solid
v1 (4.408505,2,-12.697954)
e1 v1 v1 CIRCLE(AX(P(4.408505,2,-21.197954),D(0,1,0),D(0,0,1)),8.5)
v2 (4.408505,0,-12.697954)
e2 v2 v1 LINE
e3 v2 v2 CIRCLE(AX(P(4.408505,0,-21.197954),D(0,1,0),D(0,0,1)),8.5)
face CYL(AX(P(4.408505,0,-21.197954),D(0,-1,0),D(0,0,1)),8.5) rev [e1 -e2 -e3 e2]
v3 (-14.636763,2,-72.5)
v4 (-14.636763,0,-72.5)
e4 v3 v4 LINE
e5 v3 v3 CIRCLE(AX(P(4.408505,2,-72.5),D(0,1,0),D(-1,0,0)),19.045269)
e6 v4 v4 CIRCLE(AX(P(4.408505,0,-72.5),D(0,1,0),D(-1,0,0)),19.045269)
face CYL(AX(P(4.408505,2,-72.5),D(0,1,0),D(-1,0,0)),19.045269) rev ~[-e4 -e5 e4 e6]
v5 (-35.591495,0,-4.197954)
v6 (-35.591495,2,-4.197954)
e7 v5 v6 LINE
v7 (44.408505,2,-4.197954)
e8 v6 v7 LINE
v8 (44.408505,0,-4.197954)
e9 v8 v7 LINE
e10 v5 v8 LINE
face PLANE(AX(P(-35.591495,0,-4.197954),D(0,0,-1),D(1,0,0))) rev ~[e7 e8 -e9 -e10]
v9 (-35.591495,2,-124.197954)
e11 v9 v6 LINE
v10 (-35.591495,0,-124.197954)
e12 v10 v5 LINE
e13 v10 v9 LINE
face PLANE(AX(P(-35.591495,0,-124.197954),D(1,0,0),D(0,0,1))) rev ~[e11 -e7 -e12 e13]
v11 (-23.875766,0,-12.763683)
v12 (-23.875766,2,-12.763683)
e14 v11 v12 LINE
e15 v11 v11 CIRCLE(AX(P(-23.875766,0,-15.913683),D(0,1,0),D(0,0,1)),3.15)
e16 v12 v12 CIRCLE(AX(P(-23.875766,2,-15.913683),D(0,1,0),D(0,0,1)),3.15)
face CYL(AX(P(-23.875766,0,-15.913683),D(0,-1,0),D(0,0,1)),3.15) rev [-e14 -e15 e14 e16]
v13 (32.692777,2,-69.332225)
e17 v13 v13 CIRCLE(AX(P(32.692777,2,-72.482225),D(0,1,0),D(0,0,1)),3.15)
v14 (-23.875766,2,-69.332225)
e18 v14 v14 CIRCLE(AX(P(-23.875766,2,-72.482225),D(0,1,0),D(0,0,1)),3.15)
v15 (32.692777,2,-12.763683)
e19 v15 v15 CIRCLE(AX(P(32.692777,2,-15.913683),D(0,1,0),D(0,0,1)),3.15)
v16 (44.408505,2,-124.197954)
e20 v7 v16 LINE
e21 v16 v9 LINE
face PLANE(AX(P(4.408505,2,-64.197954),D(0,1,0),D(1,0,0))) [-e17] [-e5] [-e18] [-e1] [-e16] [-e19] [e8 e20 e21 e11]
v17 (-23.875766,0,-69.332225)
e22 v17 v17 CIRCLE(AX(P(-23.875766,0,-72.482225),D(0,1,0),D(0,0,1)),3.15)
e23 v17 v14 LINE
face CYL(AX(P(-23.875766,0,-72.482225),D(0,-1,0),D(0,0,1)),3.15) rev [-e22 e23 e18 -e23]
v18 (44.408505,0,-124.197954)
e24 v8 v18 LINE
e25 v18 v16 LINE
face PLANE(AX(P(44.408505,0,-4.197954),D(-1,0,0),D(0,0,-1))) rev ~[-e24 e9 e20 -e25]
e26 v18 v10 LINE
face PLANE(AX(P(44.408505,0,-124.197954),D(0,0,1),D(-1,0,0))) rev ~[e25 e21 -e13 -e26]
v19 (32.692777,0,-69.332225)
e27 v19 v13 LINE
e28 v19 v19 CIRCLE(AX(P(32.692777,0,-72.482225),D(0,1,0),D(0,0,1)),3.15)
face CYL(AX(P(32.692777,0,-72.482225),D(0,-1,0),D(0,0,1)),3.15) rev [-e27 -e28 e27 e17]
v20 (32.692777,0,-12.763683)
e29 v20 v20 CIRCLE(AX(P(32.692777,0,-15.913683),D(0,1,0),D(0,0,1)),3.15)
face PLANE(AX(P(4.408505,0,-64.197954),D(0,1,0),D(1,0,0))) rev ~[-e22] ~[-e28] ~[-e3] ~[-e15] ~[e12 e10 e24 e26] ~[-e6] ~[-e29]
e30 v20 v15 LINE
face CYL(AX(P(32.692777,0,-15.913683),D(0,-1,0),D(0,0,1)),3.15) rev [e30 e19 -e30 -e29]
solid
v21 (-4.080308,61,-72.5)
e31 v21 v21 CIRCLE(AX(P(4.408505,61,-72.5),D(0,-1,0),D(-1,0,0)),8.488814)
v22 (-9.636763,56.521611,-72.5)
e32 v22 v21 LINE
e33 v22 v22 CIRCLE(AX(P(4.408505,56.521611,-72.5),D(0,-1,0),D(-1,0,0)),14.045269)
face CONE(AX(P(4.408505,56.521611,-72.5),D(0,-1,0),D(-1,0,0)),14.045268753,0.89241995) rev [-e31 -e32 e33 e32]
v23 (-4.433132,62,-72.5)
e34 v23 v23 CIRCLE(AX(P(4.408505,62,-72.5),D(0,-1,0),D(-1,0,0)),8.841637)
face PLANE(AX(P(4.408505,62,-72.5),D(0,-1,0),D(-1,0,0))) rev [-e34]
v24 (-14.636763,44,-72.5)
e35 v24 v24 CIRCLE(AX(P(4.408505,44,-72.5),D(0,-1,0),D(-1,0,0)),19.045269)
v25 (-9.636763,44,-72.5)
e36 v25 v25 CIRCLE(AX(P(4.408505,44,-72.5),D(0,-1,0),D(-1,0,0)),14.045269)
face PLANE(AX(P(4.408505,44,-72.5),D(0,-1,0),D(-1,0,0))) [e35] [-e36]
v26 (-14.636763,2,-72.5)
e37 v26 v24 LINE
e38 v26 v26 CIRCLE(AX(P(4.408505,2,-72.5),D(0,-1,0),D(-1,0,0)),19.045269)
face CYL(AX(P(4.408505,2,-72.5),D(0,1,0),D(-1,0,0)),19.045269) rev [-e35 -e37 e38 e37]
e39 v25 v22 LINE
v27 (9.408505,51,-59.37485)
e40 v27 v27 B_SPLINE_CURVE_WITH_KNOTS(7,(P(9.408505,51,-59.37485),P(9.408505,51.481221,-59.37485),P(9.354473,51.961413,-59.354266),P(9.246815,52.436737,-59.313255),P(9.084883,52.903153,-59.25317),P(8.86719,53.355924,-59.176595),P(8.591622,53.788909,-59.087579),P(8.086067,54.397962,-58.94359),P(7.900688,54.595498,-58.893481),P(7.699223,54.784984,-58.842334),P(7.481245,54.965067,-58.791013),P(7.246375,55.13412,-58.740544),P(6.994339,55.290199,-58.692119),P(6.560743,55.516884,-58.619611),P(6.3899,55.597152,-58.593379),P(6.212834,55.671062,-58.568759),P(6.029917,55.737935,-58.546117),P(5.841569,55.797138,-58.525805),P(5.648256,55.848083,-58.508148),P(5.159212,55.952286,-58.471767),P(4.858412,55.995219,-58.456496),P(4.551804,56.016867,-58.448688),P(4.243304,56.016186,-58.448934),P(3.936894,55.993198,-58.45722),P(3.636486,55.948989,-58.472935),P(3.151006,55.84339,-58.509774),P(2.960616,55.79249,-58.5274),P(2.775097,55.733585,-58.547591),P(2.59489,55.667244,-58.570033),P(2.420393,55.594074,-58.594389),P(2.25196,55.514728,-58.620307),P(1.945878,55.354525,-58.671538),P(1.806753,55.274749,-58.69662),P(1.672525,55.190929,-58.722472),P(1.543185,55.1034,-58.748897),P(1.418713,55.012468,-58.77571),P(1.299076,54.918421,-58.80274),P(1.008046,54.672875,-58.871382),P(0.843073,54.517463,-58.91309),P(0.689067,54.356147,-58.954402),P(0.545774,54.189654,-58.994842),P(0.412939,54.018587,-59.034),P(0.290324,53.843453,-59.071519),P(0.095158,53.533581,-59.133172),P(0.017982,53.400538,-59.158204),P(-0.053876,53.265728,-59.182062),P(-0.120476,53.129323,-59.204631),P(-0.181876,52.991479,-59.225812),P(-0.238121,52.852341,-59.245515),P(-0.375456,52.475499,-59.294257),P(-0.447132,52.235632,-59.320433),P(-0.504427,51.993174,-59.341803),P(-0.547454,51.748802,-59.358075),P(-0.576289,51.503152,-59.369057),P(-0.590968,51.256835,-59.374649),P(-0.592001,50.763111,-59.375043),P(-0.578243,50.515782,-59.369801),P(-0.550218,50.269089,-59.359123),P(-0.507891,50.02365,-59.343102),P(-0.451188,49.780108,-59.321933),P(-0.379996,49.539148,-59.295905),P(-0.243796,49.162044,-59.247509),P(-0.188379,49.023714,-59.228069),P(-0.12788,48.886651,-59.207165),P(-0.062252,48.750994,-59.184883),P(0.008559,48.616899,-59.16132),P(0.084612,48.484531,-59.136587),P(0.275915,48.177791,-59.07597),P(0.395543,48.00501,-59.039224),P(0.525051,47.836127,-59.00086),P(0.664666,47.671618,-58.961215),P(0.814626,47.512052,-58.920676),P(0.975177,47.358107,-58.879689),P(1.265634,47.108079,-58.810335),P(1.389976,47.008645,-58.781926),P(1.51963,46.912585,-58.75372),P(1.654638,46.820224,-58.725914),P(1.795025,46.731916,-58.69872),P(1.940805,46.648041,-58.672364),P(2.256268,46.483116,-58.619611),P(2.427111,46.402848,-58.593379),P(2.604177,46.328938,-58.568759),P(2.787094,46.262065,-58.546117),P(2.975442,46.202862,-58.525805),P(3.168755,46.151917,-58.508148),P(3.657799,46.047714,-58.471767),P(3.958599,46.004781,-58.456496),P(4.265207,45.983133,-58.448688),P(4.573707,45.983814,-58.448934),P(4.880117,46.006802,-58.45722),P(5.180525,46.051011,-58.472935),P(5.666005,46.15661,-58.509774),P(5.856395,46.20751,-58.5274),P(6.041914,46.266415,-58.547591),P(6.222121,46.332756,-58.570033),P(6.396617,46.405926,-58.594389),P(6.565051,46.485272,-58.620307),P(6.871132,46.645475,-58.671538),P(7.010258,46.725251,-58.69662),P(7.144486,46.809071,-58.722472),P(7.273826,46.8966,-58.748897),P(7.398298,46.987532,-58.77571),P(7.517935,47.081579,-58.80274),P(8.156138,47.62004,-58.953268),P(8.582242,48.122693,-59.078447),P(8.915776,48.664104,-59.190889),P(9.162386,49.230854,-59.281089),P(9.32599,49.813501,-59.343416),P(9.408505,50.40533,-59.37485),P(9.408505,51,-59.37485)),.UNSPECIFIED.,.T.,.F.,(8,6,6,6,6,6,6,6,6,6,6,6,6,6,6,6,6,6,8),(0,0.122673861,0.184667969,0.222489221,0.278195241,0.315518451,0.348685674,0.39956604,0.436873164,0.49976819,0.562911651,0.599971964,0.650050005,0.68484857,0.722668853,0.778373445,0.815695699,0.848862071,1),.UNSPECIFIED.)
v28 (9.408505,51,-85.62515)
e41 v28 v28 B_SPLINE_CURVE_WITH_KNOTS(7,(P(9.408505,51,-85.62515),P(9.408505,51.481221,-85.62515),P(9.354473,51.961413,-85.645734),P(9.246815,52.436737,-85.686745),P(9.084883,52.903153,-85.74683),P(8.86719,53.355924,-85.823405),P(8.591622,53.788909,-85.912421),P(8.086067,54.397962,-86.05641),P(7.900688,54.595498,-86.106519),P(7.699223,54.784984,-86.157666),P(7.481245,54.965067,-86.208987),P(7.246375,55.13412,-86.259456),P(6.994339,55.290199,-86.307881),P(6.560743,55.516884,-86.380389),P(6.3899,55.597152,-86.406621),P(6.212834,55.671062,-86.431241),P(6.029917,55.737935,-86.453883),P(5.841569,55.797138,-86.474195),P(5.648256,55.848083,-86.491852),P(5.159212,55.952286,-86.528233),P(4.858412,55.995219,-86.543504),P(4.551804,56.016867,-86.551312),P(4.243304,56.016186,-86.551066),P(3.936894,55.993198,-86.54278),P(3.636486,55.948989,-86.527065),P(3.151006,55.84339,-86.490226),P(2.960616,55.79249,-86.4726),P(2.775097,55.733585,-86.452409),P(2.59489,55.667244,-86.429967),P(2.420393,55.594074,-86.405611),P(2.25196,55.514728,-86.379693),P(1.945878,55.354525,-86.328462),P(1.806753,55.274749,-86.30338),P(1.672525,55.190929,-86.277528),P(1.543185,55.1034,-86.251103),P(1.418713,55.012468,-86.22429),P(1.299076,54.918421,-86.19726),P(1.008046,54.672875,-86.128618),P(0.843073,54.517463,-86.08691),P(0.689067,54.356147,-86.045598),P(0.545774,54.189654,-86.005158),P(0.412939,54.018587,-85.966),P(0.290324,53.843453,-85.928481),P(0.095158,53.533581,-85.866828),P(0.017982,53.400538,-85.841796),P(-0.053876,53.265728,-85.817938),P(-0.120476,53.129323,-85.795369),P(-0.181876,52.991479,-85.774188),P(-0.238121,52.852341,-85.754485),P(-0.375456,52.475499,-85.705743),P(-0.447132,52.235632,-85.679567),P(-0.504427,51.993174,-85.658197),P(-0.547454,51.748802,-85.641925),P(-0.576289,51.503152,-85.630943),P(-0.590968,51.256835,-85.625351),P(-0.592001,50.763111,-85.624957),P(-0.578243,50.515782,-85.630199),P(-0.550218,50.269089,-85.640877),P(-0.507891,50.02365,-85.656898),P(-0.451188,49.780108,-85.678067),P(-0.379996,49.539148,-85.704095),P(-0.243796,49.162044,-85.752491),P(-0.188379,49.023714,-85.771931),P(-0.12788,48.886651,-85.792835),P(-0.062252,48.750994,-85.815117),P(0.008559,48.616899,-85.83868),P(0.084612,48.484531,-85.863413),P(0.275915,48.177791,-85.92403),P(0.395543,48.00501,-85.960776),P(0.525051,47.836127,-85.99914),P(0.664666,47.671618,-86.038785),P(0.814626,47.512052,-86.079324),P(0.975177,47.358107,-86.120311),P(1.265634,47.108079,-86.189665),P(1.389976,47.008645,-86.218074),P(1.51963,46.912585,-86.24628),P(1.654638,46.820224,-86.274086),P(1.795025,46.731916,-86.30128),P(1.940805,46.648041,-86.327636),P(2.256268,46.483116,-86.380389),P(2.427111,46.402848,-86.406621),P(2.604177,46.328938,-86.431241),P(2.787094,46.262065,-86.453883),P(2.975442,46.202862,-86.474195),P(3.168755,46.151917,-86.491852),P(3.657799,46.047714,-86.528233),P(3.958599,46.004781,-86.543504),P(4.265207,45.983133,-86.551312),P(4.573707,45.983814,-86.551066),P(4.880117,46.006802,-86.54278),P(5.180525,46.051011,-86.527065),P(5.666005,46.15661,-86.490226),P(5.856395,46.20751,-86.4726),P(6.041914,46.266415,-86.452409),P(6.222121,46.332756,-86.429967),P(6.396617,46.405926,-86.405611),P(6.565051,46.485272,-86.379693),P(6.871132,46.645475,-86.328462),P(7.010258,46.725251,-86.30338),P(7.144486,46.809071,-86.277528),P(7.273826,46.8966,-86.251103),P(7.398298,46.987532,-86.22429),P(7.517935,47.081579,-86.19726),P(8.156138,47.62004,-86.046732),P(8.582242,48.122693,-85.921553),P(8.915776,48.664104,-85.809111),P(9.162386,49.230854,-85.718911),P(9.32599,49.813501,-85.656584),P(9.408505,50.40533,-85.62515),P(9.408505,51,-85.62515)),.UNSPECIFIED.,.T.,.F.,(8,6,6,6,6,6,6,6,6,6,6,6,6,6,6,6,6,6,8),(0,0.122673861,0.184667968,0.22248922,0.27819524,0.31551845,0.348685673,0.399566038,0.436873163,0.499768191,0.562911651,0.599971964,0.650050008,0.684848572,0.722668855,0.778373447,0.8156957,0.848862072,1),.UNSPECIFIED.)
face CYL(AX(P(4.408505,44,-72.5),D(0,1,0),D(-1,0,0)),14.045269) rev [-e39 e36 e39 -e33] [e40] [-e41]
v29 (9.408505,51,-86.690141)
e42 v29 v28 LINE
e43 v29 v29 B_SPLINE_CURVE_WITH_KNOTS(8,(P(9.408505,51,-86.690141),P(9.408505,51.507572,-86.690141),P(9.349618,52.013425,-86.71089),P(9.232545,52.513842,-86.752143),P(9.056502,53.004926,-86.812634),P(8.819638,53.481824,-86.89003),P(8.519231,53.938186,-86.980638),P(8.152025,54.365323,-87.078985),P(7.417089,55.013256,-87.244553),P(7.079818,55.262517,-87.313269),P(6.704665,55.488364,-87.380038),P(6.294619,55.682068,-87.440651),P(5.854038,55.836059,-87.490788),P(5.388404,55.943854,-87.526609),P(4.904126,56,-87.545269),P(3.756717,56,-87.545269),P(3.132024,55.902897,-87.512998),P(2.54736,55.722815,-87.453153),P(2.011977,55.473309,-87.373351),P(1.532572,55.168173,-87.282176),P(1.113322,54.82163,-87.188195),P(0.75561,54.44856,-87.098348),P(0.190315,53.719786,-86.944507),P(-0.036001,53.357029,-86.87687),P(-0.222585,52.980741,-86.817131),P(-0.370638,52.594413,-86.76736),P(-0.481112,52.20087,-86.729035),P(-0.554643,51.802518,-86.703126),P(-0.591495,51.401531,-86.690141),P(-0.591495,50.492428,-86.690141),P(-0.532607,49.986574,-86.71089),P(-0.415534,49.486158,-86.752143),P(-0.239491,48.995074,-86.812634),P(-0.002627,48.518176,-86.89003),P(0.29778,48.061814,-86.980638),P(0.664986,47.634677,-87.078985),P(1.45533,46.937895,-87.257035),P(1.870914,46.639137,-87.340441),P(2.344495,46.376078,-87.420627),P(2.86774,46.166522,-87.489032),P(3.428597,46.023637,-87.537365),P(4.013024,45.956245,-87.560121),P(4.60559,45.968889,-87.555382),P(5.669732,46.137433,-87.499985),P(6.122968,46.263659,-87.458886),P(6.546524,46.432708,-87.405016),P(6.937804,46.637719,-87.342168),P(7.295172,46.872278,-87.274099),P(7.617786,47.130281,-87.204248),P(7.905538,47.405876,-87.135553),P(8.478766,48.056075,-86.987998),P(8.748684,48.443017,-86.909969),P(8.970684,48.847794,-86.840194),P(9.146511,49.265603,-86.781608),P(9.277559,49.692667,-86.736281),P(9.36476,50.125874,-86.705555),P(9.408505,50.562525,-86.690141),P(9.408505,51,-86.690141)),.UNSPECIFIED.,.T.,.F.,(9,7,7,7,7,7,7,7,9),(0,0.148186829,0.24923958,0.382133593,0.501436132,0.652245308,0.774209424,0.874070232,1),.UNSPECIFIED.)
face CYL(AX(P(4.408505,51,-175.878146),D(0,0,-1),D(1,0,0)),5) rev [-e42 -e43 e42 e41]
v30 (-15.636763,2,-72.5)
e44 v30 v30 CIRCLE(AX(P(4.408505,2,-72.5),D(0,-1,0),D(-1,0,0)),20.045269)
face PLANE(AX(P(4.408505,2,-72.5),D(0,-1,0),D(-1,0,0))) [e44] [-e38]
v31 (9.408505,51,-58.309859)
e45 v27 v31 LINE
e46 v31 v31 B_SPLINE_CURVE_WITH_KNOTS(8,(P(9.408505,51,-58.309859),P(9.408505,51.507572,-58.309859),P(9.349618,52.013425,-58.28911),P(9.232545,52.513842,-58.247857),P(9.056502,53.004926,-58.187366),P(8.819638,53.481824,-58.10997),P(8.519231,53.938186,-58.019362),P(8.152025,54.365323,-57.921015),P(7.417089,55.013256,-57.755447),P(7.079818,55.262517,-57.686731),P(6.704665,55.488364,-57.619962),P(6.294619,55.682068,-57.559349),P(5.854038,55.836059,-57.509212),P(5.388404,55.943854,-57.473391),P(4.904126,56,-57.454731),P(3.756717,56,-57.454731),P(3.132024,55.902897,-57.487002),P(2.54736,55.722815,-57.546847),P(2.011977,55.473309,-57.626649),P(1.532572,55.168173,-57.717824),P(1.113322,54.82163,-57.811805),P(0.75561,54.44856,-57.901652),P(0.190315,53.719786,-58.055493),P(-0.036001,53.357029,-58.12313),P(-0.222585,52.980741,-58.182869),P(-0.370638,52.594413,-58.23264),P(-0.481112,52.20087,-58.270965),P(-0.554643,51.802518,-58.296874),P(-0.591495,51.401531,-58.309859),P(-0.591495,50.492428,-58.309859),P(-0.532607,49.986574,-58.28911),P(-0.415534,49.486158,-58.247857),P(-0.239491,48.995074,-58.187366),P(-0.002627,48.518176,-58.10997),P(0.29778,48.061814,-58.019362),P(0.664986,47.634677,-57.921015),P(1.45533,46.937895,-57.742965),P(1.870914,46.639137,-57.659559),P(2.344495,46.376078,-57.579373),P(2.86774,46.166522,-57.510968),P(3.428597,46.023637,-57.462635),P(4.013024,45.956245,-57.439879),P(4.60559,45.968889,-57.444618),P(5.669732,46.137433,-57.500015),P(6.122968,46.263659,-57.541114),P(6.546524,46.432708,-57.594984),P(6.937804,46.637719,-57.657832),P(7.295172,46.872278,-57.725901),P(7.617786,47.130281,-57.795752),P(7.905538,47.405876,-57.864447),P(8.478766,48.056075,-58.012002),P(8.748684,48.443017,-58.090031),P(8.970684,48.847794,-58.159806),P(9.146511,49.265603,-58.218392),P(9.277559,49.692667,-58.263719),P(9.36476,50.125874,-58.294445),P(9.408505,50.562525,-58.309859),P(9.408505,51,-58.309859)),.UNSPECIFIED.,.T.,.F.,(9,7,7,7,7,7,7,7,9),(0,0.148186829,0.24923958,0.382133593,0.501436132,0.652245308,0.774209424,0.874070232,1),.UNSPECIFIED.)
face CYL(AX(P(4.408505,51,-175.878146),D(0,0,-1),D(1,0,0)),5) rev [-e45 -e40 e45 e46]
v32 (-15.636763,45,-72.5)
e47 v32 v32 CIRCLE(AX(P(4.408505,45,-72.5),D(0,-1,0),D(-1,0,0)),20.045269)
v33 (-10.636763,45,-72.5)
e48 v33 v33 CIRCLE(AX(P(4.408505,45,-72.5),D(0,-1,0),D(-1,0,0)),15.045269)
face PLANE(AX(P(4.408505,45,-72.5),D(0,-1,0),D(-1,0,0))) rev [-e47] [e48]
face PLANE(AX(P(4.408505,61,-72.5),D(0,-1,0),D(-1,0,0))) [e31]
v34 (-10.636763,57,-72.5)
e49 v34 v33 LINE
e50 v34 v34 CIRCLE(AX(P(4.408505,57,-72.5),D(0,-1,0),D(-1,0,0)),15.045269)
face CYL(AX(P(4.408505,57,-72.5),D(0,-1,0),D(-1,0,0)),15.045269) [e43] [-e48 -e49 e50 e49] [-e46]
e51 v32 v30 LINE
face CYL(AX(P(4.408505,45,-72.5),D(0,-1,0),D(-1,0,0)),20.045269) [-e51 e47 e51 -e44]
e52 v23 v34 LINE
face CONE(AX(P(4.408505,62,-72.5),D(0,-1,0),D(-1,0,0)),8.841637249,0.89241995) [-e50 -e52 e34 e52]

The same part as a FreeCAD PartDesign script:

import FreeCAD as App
import Part
import Sketcher
from FreeCAD import Vector


def add_polygon(sketch, points):
    """Adds a closed chain of lines whose ends are joined by coincident constraints."""
    first, n = sketch.GeometryCount, len(points)
    for a, b in zip(points, points[1:] + points[:1]):
        sketch.addGeometry(Part.LineSegment(App.Vector(*a, 0), App.Vector(*b, 0)), False)
    for i in range(n):
        sketch.addConstraint(Sketcher.Constraint("Coincident", first + i, 2, first + (i + 1) % n, 1))

doc = App.newDocument("Part")
body = doc.addObject("PartDesign::Body", "Body")

# Sketch on XZ plane
sketch1 = body.newObject("Sketcher::SketchObject", "Sketch")
sketch1.AttachmentSupport = (doc.getObject("XZ_Plane"), [""])
sketch1.MapMode = "FlatFace"
add_polygon(sketch1, [(-35.6, -4.2), (44.4, -4.2), (44.4, -124.2), (-35.6, -124.2)])  # lines 0-3
sketch1.addGeometry(Part.Circle(Vector(-23.9, -15.9, 0), Vector(0, 0, 1), 3.1), False)  # 4
sketch1.addGeometry(Part.Circle(Vector(4.4, -21.2, 0), Vector(0, 0, 1), 8.5), False)  # 5
sketch1.addGeometry(Part.Circle(Vector(32.7, -15.9, 0), Vector(0, 0, 1), 3.1), False)  # 6
sketch1.addGeometry(Part.Circle(Vector(-23.9, -72.5, 0), Vector(0, 0, 1), 3.1), False)  # 7
sketch1.addGeometry(Part.Circle(Vector(32.7, -72.5, 0), Vector(0, 0, 1), 3.1), False)  # 8
sketch1.addConstraint([
    Sketcher.Constraint("Horizontal", 0),
    Sketcher.Constraint("Vertical", 1),
    Sketcher.Constraint("Horizontal", 2),
    Sketcher.Constraint("Vertical", 3),
    Sketcher.Constraint("Equal", 4, 6),
    Sketcher.Constraint("Equal", 6, 7),
    Sketcher.Constraint("Equal", 7, 8),
    Sketcher.Constraint("Horizontal", 4, 3, 6, 3),
    Sketcher.Constraint("Horizontal", 7, 3, 8, 3),
    Sketcher.Constraint("Vertical", 4, 3, 7, 3),
    Sketcher.Constraint("Vertical", 6, 3, 8, 3),
    Sketcher.Constraint("Diameter", 5, 17.0),
    Sketcher.Constraint("Diameter", 4, 6.3),
    Sketcher.Constraint("DistanceX", 0, 1, 0, 2, 80.0),
    Sketcher.Constraint("DistanceY", 1, 2, 1, 1, 120.0),
    Sketcher.Constraint("DistanceX", 5, 3, 0, 2, 40.0),
    Sketcher.Constraint("DistanceY", 5, 3, 0, 2, 17.0),
    Sketcher.Constraint("DistanceX", 4, 3, 5, 3, 28.284271),
    Sketcher.Constraint("DistanceY", 5, 3, 4, 3, 5.284271),
    Sketcher.Constraint("DistanceX", 5, 3, 6, 3, 28.284271),
    Sketcher.Constraint("DistanceY", 7, 3, 5, 3, 51.284271),
    Sketcher.Constraint("DistanceX", 4, 3, -1, 1, 23.875766),
    Sketcher.Constraint("DistanceY", 4, 3, -1, 1, 15.913683),
])
pad1 = body.newObject("PartDesign::Pad", "Pad")
pad1.Profile = sketch1
pad1.Length = 2
pad1.Reversed = True

# Sketch on XZ plane
sketch2 = body.newObject("Sketcher::SketchObject", "Sketch001")
sketch2.AttachmentSupport = (doc.getObject("XZ_Plane"), [""])
sketch2.MapMode = "FlatFace"
sketch2.AttachmentOffset = App.Placement(Vector(0, 0, -2), App.Rotation())
sketch2.addGeometry(Part.Circle(Vector(4, -72, 0), Vector(0, 0, 1), 19), False)
sketch2.addConstraint([
    Sketcher.Constraint("DistanceY", 0, 3, -1, 1, 72.5),
    Sketcher.Constraint("Diameter", 0, 38.090538),
    Sketcher.Constraint("DistanceX", -1, 1, 0, 3, 4.408505),
])
pocket1 = body.newObject("PartDesign::Pocket", "Pocket")
pocket1.Profile = sketch2
pocket1.Type = "ThroughAll"
pocket1.Reversed = True
body2 = doc.addObject("PartDesign::Body", "Body001")

# Sketch on XY plane
sketch3 = body2.newObject("Sketcher::SketchObject", "Sketch002")
sketch3.AttachmentSupport = (doc.getObject("XY_Plane001"), [""])
sketch3.MapMode = "FlatFace"
sketch3.AttachmentOffset = App.Placement(Vector(0, 0, -72.5), App.Rotation())
add_polygon(sketch3, [(13.3, 62), (4.4, 62), (4.4, 61), (12.9, 61), (18.5, 56.5), (18.5, 44), (23.5, 44), (23.5, 2), (24.5, 2), (24.5, 45), (19.5, 45), (19.5, 57)])  # lines 0-11
sketch3.addGeometry(Part.LineSegment(Vector(4.4, 62, 0), Vector(4.4, 2, 0)), True)  # axis
sketch3.addConstraint([
    Sketcher.Constraint("Horizontal", 0),
    Sketcher.Constraint("Vertical", 1),
    Sketcher.Constraint("Horizontal", 2),
    Sketcher.Constraint("Vertical", 4),
    Sketcher.Constraint("Horizontal", 5),
    Sketcher.Constraint("Vertical", 6),
    Sketcher.Constraint("Horizontal", 7),
    Sketcher.Constraint("Vertical", 8),
    Sketcher.Constraint("Horizontal", 9),
    Sketcher.Constraint("Vertical", 10),
    Sketcher.Constraint("Vertical", 12),
    Sketcher.Constraint("Coincident", 12, 1, 0, 2),
    Sketcher.Constraint("Parallel", 3, 11),
    Sketcher.Constraint("Horizontal", 7, 2, 12, 2),
    Sketcher.Constraint("Equal", 5, 9),
    Sketcher.Constraint("Equal", 7, 1),
    Sketcher.Constraint("DistanceX", 5, 1, 5, 2, 5.0),
    Sketcher.Constraint("DistanceX", 7, 1, 7, 2, 1.0),
    Sketcher.Constraint("DistanceY", 6, 2, 6, 1, 42.0),
    Sketcher.Constraint("DistanceY", 8, 1, 8, 2, 43.0),
    Sketcher.Constraint("DistanceY", 10, 1, 10, 2, 12.0),
    Sketcher.Constraint("DistanceY", 12, 2, 12, 1, 60.0),
    Sketcher.Constraint("DistanceY", -1, 1, 0, 2, 62.0),
    Sketcher.Constraint("DistanceY", 4, 2, 4, 1, 12.521611),
    Sketcher.Constraint("Distance", 11, 7.96775),
    Sketcher.Constraint("DistanceX", 0, 2, 0, 1, 8.841637),
    Sketcher.Constraint("DistanceX", -1, 1, 2, 2, 12.897319),
])
revolution = body2.newObject("PartDesign::Revolution", "Revolution")
revolution.Profile = sketch3
revolution.ReferenceAxis = (sketch3, ["Axis0"])
revolution.Angle = 360

# Sketch on XY plane
sketch4 = body2.newObject("Sketcher::SketchObject", "Sketch003")
sketch4.AttachmentSupport = (doc.getObject("XY_Plane001"), [""])
sketch4.MapMode = "FlatFace"
sketch4.AttachmentOffset = App.Placement(Vector(0, 0, -72.5), App.Rotation())
sketch4.addGeometry(Part.Circle(Vector(4, 51, 0), Vector(0, 0, 1), 5), False)
sketch4.addConstraint([
    Sketcher.Constraint("Diameter", 0, 10.0),
    Sketcher.Constraint("DistanceY", -1, 1, 0, 3, 51.0),
    Sketcher.Constraint("DistanceX", -1, 1, 0, 3, 4.408505),
])
pocket2 = body2.newObject("PartDesign::Pocket", "Pocket001")
pocket2.Profile = sketch4
pocket2.Type = "ThroughAll"
pocket2.Midplane = True

doc.recompute()
